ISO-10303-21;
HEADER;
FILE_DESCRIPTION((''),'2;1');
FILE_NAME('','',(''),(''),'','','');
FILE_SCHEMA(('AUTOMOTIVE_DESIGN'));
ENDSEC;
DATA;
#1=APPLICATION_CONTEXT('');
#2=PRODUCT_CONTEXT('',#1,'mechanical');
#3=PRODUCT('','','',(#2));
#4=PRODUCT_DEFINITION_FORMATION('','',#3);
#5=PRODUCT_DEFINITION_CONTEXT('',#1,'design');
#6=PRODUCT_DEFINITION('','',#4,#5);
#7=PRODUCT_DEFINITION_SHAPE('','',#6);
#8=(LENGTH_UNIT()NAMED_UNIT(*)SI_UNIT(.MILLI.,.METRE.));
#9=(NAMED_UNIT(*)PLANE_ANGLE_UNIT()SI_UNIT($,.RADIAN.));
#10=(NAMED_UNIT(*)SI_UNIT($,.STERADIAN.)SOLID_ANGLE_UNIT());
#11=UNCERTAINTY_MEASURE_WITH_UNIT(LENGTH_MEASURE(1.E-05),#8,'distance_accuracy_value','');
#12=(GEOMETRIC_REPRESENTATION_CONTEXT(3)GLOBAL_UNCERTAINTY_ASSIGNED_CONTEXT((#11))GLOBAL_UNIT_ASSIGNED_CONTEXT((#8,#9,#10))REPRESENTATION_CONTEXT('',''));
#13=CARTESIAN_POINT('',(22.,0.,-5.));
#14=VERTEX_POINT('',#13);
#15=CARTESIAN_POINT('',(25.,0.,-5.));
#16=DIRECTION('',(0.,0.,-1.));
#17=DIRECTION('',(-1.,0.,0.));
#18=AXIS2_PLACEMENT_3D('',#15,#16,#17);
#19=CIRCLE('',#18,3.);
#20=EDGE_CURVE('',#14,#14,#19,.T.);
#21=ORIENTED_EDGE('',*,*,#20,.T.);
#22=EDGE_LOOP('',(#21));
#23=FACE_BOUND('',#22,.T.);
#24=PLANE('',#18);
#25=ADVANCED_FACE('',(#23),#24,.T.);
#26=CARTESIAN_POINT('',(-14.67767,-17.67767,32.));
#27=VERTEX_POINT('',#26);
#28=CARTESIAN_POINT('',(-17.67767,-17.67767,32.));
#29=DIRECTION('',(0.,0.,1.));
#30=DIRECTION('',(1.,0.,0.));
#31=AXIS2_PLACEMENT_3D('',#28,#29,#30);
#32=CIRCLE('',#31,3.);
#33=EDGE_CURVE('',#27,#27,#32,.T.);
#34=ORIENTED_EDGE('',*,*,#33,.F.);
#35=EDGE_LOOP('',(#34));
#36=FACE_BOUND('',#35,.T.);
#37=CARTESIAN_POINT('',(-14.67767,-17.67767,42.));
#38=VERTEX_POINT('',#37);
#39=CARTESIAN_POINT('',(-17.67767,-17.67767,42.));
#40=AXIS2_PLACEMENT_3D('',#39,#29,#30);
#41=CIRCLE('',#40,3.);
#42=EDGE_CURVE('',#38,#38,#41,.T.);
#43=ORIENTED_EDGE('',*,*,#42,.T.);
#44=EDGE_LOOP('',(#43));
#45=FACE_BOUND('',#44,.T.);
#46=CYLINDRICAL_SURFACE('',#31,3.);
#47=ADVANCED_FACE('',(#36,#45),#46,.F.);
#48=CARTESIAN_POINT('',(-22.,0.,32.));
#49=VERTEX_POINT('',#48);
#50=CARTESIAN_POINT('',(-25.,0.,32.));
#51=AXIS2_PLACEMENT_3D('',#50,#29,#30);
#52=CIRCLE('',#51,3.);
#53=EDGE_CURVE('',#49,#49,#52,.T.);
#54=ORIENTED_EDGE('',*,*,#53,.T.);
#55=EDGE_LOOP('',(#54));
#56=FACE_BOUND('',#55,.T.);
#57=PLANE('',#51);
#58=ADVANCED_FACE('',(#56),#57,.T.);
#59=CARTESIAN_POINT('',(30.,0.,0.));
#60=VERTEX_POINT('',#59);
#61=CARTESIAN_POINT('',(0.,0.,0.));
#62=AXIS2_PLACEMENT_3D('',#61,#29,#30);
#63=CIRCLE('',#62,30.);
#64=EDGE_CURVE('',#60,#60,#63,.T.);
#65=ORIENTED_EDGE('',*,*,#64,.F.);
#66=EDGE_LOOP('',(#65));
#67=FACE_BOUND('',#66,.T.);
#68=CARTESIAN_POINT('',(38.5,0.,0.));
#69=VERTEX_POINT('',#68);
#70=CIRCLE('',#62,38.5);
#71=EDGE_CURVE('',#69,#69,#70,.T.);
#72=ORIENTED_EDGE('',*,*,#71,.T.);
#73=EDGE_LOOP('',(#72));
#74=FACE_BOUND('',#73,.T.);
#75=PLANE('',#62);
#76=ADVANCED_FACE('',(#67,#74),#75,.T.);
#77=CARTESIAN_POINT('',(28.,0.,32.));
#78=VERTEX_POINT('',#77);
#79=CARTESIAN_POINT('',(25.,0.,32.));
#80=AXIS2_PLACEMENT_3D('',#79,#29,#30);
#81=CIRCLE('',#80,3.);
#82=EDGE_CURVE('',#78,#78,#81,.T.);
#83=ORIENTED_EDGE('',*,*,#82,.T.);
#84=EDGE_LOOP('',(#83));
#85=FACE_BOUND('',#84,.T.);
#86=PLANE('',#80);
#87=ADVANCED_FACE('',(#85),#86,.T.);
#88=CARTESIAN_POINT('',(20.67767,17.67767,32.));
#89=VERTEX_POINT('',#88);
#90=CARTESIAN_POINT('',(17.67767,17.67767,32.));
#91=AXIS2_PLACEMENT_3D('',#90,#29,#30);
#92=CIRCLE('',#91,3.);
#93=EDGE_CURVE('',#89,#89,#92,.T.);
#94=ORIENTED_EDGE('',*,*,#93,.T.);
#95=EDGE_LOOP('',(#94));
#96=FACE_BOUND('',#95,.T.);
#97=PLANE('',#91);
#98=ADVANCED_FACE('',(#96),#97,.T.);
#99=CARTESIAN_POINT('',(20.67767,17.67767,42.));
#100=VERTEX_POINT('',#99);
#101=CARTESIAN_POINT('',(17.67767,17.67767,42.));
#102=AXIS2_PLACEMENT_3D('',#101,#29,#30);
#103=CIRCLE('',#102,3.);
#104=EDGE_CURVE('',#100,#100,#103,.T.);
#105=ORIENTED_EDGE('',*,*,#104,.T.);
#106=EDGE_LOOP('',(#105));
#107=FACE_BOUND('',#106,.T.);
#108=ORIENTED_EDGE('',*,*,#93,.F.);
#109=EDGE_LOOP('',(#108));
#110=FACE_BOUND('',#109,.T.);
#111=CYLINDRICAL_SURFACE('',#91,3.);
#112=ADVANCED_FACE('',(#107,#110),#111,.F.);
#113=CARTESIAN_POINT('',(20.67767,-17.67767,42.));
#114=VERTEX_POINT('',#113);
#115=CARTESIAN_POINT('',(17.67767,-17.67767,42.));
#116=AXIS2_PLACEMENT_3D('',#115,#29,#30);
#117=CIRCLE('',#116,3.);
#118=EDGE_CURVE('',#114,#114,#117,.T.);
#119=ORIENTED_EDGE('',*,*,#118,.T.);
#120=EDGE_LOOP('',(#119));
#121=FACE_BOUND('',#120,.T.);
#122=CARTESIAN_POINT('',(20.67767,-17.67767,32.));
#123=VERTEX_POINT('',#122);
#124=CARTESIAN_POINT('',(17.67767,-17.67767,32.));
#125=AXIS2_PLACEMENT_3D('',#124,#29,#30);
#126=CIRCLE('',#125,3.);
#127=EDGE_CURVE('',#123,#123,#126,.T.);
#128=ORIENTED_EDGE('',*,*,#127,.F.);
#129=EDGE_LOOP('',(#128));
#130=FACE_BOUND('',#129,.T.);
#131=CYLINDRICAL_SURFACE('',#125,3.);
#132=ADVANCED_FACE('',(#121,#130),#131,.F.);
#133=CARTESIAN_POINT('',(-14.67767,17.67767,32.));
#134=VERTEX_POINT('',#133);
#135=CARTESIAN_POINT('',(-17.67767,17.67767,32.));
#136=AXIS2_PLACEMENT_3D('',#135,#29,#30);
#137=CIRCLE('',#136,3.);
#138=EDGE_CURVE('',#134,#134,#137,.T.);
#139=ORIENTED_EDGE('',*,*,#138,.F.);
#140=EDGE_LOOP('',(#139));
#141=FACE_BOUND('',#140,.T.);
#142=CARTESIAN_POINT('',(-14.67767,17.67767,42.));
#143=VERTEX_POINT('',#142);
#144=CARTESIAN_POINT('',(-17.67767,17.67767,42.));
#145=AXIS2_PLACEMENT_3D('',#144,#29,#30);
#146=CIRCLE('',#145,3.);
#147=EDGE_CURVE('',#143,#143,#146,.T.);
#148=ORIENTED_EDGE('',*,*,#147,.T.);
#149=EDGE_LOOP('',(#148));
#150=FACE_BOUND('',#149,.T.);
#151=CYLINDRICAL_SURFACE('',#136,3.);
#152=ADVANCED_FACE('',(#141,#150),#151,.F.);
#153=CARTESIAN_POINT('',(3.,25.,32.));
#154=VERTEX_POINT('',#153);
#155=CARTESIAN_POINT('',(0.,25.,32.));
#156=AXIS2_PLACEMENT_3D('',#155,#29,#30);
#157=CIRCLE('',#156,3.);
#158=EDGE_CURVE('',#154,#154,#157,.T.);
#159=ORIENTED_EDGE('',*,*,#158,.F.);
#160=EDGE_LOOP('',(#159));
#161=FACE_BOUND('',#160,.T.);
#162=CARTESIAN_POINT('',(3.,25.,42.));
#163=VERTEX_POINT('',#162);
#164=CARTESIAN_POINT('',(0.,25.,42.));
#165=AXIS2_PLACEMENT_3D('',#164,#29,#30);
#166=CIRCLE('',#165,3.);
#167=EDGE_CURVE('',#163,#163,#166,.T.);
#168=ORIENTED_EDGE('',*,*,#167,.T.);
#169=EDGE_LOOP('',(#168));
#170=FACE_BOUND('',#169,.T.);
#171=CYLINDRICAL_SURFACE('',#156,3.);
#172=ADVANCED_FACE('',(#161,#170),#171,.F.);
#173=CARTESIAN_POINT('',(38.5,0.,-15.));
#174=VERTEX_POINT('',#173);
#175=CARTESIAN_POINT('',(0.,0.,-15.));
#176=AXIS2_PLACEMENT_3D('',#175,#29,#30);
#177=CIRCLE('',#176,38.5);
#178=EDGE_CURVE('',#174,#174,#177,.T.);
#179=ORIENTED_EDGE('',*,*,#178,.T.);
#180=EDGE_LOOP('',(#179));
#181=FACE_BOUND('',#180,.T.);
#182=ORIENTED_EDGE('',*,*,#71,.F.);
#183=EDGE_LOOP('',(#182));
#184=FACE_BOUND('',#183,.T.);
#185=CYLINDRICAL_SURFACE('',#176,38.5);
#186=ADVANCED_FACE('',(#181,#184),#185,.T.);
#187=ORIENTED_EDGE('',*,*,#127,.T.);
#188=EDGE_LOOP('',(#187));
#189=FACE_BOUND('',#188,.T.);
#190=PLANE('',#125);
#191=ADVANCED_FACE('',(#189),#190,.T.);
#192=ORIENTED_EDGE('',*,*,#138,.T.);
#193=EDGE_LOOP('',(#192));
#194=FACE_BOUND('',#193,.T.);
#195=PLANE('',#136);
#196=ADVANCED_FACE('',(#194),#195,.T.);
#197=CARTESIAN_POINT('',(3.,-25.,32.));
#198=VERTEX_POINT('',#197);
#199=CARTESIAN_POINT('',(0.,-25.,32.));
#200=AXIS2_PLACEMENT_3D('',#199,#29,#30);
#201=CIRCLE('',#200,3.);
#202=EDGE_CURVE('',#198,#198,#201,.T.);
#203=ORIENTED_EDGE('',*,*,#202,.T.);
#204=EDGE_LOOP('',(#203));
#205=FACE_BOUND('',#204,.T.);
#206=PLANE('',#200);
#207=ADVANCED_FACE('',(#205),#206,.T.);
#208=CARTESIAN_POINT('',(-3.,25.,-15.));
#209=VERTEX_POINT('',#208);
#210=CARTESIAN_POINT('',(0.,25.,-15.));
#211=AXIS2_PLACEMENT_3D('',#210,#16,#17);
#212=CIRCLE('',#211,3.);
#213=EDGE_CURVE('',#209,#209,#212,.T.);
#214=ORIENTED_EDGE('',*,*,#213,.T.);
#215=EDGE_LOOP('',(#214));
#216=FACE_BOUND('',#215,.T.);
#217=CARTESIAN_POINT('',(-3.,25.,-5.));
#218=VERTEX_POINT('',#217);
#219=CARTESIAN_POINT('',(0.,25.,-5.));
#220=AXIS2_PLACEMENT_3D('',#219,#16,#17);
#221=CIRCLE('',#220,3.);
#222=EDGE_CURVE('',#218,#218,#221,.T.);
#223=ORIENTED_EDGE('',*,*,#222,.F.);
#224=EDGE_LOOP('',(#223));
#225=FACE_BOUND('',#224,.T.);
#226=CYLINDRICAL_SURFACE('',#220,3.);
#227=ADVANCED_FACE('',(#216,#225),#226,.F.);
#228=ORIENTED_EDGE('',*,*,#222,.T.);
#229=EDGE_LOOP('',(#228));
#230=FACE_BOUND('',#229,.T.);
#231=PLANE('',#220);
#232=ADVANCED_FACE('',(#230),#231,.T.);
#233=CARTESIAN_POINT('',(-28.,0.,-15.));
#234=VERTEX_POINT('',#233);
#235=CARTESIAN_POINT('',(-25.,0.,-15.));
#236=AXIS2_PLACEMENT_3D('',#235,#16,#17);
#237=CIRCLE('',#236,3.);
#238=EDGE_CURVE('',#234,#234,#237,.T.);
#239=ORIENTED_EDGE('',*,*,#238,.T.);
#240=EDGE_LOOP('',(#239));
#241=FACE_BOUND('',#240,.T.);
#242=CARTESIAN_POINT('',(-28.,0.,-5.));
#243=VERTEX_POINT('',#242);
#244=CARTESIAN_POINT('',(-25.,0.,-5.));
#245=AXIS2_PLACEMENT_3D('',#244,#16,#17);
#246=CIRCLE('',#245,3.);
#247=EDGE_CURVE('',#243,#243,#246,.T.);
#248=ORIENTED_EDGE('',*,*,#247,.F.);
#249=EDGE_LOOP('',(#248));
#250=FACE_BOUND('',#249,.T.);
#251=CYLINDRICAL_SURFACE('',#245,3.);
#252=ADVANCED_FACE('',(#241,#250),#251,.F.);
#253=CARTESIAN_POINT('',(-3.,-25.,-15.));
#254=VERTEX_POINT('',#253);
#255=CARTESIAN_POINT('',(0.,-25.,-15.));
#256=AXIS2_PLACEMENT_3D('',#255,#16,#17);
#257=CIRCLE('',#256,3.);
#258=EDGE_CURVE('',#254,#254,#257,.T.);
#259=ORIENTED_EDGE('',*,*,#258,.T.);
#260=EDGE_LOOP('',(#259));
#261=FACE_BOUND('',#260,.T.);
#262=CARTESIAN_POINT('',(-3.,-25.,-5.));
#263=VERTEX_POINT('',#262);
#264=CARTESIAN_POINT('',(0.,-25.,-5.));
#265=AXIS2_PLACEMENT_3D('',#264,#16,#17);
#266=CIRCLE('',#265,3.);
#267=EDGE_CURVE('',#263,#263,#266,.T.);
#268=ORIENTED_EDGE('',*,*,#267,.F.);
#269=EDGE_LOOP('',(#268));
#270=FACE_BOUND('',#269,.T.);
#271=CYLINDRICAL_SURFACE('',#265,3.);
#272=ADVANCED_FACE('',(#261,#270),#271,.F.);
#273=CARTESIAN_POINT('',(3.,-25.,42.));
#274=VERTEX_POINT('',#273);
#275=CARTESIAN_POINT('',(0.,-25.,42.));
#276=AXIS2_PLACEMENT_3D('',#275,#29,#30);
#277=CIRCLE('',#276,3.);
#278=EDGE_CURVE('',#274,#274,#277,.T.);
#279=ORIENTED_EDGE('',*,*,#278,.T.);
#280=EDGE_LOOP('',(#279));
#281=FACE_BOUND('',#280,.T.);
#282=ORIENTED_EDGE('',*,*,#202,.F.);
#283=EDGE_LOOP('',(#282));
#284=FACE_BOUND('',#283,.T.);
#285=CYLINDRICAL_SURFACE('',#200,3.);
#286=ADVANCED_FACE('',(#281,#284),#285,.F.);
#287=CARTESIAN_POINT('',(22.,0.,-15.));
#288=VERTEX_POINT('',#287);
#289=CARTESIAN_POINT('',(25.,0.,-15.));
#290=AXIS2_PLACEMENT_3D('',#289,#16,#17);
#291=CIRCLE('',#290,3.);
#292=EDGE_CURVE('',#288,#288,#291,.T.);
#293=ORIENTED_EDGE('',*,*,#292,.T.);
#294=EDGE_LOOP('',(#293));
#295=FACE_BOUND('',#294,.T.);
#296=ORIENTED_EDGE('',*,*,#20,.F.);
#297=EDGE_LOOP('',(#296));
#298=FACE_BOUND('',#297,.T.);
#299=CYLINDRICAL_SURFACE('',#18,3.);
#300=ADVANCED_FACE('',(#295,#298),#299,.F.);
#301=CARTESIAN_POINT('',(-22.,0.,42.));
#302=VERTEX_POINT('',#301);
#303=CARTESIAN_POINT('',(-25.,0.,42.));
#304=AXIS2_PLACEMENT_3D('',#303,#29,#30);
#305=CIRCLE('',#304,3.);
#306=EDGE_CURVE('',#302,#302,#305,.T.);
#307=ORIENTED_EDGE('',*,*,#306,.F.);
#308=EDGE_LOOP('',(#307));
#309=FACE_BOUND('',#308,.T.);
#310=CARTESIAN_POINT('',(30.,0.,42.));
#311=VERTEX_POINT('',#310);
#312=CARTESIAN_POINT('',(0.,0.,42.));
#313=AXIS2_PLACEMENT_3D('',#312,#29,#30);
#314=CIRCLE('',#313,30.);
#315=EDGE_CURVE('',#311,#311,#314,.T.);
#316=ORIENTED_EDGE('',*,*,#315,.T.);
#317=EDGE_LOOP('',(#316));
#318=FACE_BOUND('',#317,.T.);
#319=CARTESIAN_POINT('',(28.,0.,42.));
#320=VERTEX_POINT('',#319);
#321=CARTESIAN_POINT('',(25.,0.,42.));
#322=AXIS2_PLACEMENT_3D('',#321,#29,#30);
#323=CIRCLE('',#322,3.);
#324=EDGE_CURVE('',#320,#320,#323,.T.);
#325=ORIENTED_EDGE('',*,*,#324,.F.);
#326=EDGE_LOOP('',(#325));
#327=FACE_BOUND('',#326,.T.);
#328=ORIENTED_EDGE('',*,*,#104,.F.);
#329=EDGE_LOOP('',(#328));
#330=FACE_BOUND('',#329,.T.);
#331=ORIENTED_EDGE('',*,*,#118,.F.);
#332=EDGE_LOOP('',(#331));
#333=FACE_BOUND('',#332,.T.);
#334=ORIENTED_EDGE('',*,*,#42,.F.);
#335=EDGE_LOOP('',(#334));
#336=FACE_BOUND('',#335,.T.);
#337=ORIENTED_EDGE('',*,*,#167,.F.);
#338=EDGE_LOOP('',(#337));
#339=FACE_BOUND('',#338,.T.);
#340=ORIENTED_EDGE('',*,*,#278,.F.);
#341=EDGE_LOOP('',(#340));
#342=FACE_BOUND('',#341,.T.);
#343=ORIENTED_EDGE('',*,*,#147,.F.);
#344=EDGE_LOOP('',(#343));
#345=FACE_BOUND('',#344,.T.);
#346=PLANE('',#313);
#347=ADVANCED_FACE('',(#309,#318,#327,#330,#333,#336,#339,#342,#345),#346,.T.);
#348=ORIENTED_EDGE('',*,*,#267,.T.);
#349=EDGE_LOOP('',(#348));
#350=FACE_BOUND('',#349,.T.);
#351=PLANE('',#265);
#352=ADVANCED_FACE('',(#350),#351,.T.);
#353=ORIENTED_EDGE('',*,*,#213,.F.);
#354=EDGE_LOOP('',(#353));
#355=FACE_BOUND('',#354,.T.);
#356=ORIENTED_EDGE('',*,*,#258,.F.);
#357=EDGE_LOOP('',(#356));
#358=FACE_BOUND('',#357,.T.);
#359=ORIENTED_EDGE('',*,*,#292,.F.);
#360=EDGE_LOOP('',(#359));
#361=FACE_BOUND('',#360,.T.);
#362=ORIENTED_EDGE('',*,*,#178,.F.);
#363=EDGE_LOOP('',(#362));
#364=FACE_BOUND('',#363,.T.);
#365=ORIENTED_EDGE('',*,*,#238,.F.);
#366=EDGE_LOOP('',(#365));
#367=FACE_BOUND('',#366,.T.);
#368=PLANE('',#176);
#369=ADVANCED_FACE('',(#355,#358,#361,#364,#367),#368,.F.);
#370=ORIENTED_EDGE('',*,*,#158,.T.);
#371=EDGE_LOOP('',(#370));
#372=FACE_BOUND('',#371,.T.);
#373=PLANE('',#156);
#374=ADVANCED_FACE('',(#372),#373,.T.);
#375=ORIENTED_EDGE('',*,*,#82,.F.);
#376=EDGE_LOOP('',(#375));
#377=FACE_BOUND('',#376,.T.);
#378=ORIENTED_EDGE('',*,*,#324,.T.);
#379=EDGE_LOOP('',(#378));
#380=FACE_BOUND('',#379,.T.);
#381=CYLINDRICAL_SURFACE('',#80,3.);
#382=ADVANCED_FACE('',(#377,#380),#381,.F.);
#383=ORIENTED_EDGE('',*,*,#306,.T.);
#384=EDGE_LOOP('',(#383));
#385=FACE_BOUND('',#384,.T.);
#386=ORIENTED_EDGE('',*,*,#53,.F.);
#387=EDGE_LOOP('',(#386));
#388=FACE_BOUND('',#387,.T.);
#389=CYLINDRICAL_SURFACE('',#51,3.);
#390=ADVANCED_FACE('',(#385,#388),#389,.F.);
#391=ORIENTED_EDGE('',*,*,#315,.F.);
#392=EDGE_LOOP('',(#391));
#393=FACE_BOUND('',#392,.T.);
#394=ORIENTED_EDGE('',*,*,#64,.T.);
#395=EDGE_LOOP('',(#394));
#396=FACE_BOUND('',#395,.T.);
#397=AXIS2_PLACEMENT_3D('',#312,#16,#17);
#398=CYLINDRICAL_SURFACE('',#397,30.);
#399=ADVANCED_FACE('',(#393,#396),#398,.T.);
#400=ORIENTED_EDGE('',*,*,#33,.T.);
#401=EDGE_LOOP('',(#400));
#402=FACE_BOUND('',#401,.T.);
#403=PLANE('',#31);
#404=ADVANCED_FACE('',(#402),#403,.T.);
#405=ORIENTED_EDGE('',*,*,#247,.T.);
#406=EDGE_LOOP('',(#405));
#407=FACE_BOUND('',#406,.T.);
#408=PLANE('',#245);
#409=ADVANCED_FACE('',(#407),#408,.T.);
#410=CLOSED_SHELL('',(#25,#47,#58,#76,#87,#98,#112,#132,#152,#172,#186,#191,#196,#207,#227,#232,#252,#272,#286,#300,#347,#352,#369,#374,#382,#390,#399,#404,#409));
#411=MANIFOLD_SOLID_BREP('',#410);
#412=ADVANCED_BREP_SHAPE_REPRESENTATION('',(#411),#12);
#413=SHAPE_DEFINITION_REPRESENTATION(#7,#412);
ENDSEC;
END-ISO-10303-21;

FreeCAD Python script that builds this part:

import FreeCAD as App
import Part
import Sketcher
from FreeCAD import Vector

doc = App.newDocument("Part")
params = doc.addObject("Spreadsheet::Sheet", "Params")
for row, (alias, value) in enumerate([
    ("sketch1_diameter", "60 mm"),
    ("pad1_length", "42 mm"),
    ("sketch2_diameter", "77 mm"),
    ("pad2_length", "15 mm"),
    ("sketch3_diameter", "6 mm"),
    ("pocket1_length", "10 mm"),
    ("sketch4_diameter", "6 mm"),
    ("pocket2_length", "10 mm"),
], start=1):
    params.set(f"A{row}", alias)
    params.set(f"B{row}", "=" + value)
    params.setAlias(f"B{row}", alias)

body = doc.addObject("PartDesign::Body", "Body")

sketch1 = doc.addObject("Sketcher::SketchObject", "Sketch")
body.addObject(sketch1)
sketch1.AttachmentSupport = (doc.XY_Plane, [""])
sketch1.MapMode = "FlatFace"
sketch1.addGeometry(Part.Circle(Vector(0, 0, 0), Vector(0, 0, 1), 30), False)
sketch1.addConstraint([
    Sketcher.Constraint("Coincident", 0, 3, -1, 1),
    Sketcher.Constraint("Diameter", 0, 60.0),
])
sketch1.setExpression("Constraints[1]", "Params.sketch1_diameter")
pad1 = doc.addObject("PartDesign::Pad", "Pad")
body.addObject(pad1)
pad1.Profile = sketch1
pad1.setExpression("Length", "Params.pad1_length")

sketch2 = doc.addObject("Sketcher::SketchObject", "Sketch001")
body.addObject(sketch2)
sketch2.AttachmentSupport = (doc.XY_Plane, [""])
sketch2.MapMode = "FlatFace"
sketch2.addGeometry(Part.Circle(Vector(0, 0, 0), Vector(0, 0, 1), 38), False)
sketch2.addConstraint([
    Sketcher.Constraint("Coincident", 0, 3, -1, 1),
    Sketcher.Constraint("Diameter", 0, 77.0),
])
sketch2.setExpression("Constraints[1]", "Params.sketch2_diameter")
pad2 = doc.addObject("PartDesign::Pad", "Pad001")
body.addObject(pad2)
pad2.Profile = sketch2
pad2.setExpression("Length", "Params.pad2_length")
pad2.Reversed = True

sketch3 = doc.addObject("Sketcher::SketchObject", "Sketch002")
body.addObject(sketch3)
sketch3.AttachmentSupport = (doc.XY_Plane, [""])
sketch3.MapMode = "FlatFace"
sketch3.AttachmentOffset = App.Placement(Vector(0, 0, -15), App.Rotation())
sketch3.addGeometry([
    Part.Circle(Vector(0, 25, 0), Vector(0, 0, 1), 3),
    Part.Circle(Vector(-25, 0, 0), Vector(0, 0, 1), 3),
    Part.Circle(Vector(0, -25, 0), Vector(0, 0, 1), 3),
    Part.Circle(Vector(25, 0, 0), Vector(0, 0, 1), 3),
], False)
sketch3.addConstraint([
    Sketcher.Constraint("Equal", 0, 1),
    Sketcher.Constraint("Equal", 1, 2),
    Sketcher.Constraint("Equal", 2, 3),
    Sketcher.Constraint("Symmetric", 0, 3, 2, 3, -1, 1),
    Sketcher.Constraint("Symmetric", 1, 3, 3, 3, -1, 1),
    Sketcher.Constraint("PointOnObject", 0, 3, -2),
    Sketcher.Constraint("PointOnObject", 1, 3, -1),
    Sketcher.Constraint("Diameter", 0, 6.0),
    Sketcher.Constraint("DistanceY", -1, 1, 0, 3, 25.0),
    Sketcher.Constraint("DistanceX", 1, 3, -1, 1, 25.0),
])
sketch3.setExpression("Constraints[7]", "Params.sketch3_diameter")
pocket1 = doc.addObject("PartDesign::Pocket", "Pocket")
body.addObject(pocket1)
pocket1.Profile = sketch3
pocket1.setExpression("Length", "Params.pocket1_length")
pocket1.Reversed = True

sketch4 = doc.addObject("Sketcher::SketchObject", "Sketch003")
body.addObject(sketch4)
sketch4.AttachmentSupport = (doc.XY_Plane, [""])
sketch4.MapMode = "FlatFace"
sketch4.AttachmentOffset = App.Placement(Vector(0, 0, 42), App.Rotation())
sketch4.addGeometry([
    Part.Circle(Vector(0, 25, 0), Vector(0, 0, 1), 3),
    Part.Circle(Vector(17.7, 17.7, 0), Vector(0, 0, 1), 3),
    Part.Circle(Vector(25, 0, 0), Vector(0, 0, 1), 3),
    Part.Circle(Vector(17.7, -17.7, 0), Vector(0, 0, 1), 3),
    Part.Circle(Vector(0, -25, 0), Vector(0, 0, 1), 3),
    Part.Circle(Vector(-17.7, -17.7, 0), Vector(0, 0, 1), 3),
    Part.Circle(Vector(-25, 0, 0), Vector(0, 0, 1), 3),
    Part.Circle(Vector(-17.7, 17.7, 0), Vector(0, 0, 1), 3),
], False)
sketch4.addConstraint([
    Sketcher.Constraint("Equal", 0, 1),
    Sketcher.Constraint("Equal", 1, 2),
    Sketcher.Constraint("Equal", 2, 3),
    Sketcher.Constraint("Equal", 3, 4),
    Sketcher.Constraint("Equal", 4, 5),
    Sketcher.Constraint("Equal", 5, 6),
    Sketcher.Constraint("Equal", 6, 7),
    Sketcher.Constraint("Symmetric", 0, 3, 4, 3, -1, 1),
    Sketcher.Constraint("Symmetric", 1, 3, 5, 3, -1, 1),
    Sketcher.Constraint("Symmetric", 2, 3, 6, 3, -1, 1),
    Sketcher.Constraint("Symmetric", 3, 3, 7, 3, -1, 1),
    Sketcher.Constraint("Symmetric", 3, 3, 5, 3, -2),
    Sketcher.Constraint("PointOnObject", 0, 3, -2),
    Sketcher.Constraint("PointOnObject", 2, 3, -1),
    Sketcher.Constraint("Diameter", 0, 6.0),
    Sketcher.Constraint("DistanceY", -1, 1, 0, 3, 25.0),
    Sketcher.Constraint("DistanceX", -1, 1, 2, 3, 25.0),
    Sketcher.Constraint("DistanceX", -1, 1, 1, 3, 17.67767),
    Sketcher.Constraint("DistanceY", -1, 1, 1, 3, 17.67767),
])
sketch4.setExpression("Constraints[14]", "Params.sketch4_diameter")
pocket2 = doc.addObject("PartDesign::Pocket", "Pocket001")
body.addObject(pocket2)
pocket2.Profile = sketch4
pocket2.setExpression("Length", "Params.pocket2_length")

doc.recompute()
